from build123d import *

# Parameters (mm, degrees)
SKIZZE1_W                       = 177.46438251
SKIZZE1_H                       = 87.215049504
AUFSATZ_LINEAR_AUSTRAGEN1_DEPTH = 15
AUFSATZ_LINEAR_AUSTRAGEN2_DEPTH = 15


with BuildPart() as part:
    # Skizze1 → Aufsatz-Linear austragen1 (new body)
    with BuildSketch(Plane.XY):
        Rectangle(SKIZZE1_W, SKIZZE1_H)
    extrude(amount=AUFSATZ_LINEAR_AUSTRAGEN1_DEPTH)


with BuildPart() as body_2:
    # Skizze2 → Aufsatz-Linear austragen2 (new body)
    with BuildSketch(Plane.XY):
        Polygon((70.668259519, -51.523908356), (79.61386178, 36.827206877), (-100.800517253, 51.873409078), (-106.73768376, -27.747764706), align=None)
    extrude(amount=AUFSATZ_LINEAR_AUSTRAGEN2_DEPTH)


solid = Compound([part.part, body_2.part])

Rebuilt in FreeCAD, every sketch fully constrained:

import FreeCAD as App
import Part
import Sketcher

V = App.Vector


def add_polygon(sketch, points):
    """Adds a closed chain of lines whose ends are joined by coincident constraints."""
    first, n = sketch.GeometryCount, len(points)
    for a, b in zip(points, points[1:] + points[:1]):
        sketch.addGeometry(Part.LineSegment(App.Vector(*a, 0), App.Vector(*b, 0)), False)
    for i in range(n):
        sketch.addConstraint(Sketcher.Constraint("Coincident", first + i, 2, first + (i + 1) % n, 1))

doc = App.newDocument("Part")
body = doc.addObject("PartDesign::Body", "Body")

sketch1 = body.newObject("Sketcher::SketchObject", "Sketch")
sketch1.AttachmentSupport = (doc.getObject("XY_Plane"), [""])
sketch1.MapMode = "FlatFace"
add_polygon(sketch1, [(-89, 44), (-89, -44), (89, -44), (89, 44)])
sketch1.addConstraint(Sketcher.Constraint("Vertical", 0))
sketch1.addConstraint(Sketcher.Constraint("Horizontal", 1))
sketch1.addConstraint(Sketcher.Constraint("Vertical", 2))
sketch1.addConstraint(Sketcher.Constraint("Horizontal", 3))
sketch1.addConstraint(Sketcher.Constraint("Symmetric", 0, 2, 2, 2, -1, 1))
sketch1.addConstraint(Sketcher.Constraint("DistanceY", 0, 2, 0, 1, 87.21505))
sketch1.addConstraint(Sketcher.Constraint("DistanceX", 1, 1, 1, 2, 177.464383))
pad1 = body.newObject("PartDesign::Pad", "Pad")
pad1.Profile = sketch1
pad1.Length = 15
body2 = doc.addObject("PartDesign::Body", "Body001")

sketch2 = body2.newObject("Sketcher::SketchObject", "Sketch001")
sketch2.AttachmentSupport = (doc.getObject("XY_Plane001"), [""])
sketch2.MapMode = "FlatFace"
add_polygon(sketch2, [(71, -52), (80, 37), (-101, 52), (-107, -28)])
sketch2.addConstraint(Sketcher.Constraint("DistanceX", -1, 1, 0, 2, 79.613862))
sketch2.addConstraint(Sketcher.Constraint("DistanceY", -1, 1, 1, 2, 51.873409))
sketch2.addConstraint(Sketcher.Constraint("DistanceX", -1, 1, 3, 2, 70.66826))
sketch2.addConstraint(Sketcher.Constraint("DistanceY", 3, 2, -1, 1, 51.523908))
sketch2.addConstraint(Sketcher.Constraint("DistanceX", 1, 2, 0, 2, 180.414379))
sketch2.addConstraint(Sketcher.Constraint("DistanceY", 2, 2, 0, 2, 64.574972))
sketch2.addConstraint(Sketcher.Constraint("Distance", 0, 88.802834))
sketch2.addConstraint(Sketcher.Constraint("Distance", 2, 79.842227))
pad2 = body2.newObject("PartDesign::Pad", "Pad001")
pad2.Profile = sketch2
pad2.Length = 15

doc.recompute()
